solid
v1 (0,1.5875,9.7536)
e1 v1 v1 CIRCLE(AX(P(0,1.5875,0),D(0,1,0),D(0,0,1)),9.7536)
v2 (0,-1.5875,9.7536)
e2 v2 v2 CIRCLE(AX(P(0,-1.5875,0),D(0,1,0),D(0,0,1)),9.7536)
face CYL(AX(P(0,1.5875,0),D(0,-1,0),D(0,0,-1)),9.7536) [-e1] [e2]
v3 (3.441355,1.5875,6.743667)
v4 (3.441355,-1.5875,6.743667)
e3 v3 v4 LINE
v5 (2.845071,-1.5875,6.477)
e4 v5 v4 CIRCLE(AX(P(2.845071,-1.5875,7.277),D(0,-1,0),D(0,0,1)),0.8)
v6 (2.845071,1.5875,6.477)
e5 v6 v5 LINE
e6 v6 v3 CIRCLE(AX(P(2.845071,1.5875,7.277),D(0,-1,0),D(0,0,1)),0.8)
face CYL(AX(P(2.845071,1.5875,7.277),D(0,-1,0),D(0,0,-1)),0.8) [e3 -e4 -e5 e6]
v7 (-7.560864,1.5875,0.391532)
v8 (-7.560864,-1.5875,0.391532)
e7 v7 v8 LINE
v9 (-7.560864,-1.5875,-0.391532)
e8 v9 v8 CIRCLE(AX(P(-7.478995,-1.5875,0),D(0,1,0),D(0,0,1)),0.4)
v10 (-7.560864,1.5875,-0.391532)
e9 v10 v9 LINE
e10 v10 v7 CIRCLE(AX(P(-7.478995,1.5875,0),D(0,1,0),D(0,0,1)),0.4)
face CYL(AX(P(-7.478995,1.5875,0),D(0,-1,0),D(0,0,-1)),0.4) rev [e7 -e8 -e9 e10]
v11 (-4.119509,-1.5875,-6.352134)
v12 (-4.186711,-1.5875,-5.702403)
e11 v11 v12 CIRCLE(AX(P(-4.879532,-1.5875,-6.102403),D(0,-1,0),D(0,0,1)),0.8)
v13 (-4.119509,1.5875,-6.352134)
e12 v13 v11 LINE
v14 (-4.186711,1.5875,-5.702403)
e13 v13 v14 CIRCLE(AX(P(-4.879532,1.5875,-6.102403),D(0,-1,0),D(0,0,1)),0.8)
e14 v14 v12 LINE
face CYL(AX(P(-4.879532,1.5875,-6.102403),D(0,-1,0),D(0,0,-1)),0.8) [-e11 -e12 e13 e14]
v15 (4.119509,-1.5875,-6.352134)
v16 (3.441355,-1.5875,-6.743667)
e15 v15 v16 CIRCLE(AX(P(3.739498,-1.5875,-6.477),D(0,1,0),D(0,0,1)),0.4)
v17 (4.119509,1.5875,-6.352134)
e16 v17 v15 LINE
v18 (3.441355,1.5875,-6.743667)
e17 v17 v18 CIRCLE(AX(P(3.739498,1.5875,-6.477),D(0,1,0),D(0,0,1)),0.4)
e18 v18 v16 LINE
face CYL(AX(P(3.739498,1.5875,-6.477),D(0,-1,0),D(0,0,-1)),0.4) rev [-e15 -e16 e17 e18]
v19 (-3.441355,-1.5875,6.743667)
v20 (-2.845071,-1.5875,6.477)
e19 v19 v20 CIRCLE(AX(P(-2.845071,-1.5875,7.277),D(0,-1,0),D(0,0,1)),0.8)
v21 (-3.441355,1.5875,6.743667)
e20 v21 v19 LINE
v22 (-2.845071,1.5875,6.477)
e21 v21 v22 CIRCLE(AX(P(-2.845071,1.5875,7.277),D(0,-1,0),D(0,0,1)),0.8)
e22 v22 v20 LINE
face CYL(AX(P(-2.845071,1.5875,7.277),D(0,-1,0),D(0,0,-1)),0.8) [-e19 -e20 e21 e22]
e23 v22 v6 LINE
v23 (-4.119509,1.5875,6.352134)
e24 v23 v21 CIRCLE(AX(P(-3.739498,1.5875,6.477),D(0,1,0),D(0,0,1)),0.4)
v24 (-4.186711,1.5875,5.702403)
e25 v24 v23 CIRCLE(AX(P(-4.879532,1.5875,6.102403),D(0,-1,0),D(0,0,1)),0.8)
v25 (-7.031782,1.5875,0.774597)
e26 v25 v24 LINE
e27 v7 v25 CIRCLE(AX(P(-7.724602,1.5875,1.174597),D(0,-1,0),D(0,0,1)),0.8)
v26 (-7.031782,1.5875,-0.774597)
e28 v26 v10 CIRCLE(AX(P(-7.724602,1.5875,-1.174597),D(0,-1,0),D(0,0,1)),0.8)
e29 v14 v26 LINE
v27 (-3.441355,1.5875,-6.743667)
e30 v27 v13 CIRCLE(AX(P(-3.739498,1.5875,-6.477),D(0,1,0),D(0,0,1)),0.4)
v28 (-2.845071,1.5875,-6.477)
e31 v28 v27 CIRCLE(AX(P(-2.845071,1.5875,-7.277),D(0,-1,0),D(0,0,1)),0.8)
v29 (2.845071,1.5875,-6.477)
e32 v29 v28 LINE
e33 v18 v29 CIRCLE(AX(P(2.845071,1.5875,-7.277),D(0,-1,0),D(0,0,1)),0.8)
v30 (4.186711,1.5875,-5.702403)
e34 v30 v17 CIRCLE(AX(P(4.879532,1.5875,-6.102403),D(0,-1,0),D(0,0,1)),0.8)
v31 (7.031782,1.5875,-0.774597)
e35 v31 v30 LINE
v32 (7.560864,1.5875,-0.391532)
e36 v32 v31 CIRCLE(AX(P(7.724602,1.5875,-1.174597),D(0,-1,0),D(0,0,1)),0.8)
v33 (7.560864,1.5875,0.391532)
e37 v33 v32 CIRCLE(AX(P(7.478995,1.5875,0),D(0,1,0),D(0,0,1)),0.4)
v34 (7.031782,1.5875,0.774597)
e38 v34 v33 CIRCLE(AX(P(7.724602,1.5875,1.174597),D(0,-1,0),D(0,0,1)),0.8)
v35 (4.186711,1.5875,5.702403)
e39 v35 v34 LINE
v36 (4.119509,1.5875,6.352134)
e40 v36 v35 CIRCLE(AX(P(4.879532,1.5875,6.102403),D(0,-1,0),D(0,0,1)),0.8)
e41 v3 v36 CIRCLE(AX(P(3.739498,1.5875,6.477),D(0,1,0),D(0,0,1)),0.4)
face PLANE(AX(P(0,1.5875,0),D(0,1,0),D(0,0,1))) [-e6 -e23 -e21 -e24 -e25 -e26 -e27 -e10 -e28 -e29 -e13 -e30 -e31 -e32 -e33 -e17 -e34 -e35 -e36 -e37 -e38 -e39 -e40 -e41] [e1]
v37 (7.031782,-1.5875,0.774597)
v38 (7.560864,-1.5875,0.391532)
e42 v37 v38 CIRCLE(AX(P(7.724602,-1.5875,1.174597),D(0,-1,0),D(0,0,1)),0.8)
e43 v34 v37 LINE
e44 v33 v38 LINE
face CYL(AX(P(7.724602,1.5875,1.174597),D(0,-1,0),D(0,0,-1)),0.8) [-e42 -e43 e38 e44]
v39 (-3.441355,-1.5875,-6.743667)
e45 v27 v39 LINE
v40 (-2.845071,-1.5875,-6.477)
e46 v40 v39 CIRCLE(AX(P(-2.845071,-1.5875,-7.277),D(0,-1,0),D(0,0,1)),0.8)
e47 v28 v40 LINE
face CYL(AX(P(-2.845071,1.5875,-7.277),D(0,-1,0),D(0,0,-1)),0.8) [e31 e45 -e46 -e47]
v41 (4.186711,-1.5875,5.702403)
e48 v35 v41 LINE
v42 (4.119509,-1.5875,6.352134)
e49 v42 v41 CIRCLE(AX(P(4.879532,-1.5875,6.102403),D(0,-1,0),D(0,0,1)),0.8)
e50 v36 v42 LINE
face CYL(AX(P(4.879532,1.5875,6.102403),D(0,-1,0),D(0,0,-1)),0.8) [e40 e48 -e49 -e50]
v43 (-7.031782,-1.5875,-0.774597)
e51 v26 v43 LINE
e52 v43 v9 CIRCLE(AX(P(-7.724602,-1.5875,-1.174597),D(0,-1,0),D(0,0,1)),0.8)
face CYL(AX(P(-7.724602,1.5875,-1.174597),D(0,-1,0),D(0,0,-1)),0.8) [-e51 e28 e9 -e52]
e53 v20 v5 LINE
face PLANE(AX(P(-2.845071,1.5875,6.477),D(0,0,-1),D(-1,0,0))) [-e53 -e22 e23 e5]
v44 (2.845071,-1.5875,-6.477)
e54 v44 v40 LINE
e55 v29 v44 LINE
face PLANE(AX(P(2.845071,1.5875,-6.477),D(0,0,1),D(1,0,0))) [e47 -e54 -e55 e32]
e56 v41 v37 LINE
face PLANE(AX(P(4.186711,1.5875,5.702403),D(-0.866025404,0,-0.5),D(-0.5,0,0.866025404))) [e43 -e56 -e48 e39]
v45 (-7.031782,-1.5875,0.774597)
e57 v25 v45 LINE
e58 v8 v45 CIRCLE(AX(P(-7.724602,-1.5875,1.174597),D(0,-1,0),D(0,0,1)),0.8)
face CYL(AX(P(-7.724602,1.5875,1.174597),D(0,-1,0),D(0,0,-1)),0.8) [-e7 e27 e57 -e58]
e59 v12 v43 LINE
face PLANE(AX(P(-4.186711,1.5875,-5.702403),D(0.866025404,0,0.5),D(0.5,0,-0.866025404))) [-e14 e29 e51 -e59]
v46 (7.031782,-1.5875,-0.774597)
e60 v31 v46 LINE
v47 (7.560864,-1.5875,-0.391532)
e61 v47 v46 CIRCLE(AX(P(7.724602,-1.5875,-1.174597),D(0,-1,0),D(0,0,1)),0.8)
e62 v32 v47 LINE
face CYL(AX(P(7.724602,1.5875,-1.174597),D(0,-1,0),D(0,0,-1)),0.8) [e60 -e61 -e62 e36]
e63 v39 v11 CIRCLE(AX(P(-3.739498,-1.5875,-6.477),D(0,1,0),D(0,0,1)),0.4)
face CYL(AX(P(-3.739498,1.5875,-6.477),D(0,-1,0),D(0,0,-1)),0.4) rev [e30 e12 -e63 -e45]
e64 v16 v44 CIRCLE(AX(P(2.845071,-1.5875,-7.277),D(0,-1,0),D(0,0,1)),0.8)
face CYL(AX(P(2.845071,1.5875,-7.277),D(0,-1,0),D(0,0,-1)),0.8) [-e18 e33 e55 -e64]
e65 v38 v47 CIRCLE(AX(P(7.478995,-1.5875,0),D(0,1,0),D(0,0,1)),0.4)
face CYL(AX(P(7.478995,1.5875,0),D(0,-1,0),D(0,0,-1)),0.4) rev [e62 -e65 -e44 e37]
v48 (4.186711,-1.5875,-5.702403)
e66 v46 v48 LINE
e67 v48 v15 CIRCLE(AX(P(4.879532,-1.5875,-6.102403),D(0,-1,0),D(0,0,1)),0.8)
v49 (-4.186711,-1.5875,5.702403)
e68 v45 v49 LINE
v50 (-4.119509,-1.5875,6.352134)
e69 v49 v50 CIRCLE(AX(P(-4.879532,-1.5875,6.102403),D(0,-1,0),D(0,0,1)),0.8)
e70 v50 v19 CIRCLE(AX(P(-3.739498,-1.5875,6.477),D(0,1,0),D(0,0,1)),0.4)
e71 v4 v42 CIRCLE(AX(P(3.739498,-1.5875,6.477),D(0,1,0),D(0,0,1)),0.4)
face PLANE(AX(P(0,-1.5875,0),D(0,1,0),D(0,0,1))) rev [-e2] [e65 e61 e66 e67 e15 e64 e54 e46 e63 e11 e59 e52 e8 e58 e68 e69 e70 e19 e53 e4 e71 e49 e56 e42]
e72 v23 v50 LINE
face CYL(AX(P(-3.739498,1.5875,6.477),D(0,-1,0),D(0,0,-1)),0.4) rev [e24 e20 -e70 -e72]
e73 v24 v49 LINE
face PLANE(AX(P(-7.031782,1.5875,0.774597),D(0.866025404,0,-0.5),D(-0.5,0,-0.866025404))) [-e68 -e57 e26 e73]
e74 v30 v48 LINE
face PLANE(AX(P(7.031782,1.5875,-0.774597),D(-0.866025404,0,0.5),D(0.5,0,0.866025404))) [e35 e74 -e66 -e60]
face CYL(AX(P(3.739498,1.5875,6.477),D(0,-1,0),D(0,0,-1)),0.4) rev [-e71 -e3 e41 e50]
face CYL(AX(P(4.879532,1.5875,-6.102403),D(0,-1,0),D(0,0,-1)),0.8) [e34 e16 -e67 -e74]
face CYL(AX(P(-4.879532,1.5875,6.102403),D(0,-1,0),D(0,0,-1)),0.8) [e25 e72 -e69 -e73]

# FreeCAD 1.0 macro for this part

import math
import FreeCAD as App
import Part
import Sketcher

V = App.Vector
Q = App.Units.Quantity

doc = App.newDocument("Part")
params = doc.addObject("Spreadsheet::Sheet", "Params")
for row, (alias, value) in enumerate([
    ("sketch1_radius", "0.8 mm"),
    ("sketch1_radius2", "0.4 mm"),
    ("pad1_length", "3.175 mm"),
], start=1):
    params.set(f"A{row}", alias)
    params.set(f"B{row}", "=" + value)
    params.setAlias(f"B{row}", alias)

body = doc.addObject("PartDesign::Body", "Body")

# Sketch on XZ plane
sketch1 = body.newObject("Sketcher::SketchObject", "Sketch")
sketch1.AttachmentSupport = (doc.getObject("XZ_Plane"), [""])
sketch1.MapMode = "FlatFace"
sketch1.addGeometry([
    Part.Circle(V(0, 0, 0), V(0, 0, 1), 9.7536),  # 0
    Part.LineSegment(V(7.031782, 0.774597, 0), V(4.186711, 5.702403, 0)),  # 1
    Part.ArcOfCircle(Part.Circle(V(4.879532, 6.102403, 0), V(0, 0, 1), 0.8), math.radians(161.810315), math.radians(210)),  # 2
    Part.ArcOfCircle(Part.Circle(V(3.739498, 6.477, 0), V(0, 0, 1), 0.4), math.radians(-18.189685), math.radians(138.189685)),  # 3
    Part.ArcOfCircle(Part.Circle(V(2.845071, 7.277, 0), V(0, 0, 1), 0.8), math.radians(-90), math.radians(-41.810315)),  # 4
    Part.LineSegment(V(2.845071, 6.477, 0), V(-2.845071, 6.477, 0)),  # 5
    Part.ArcOfCircle(Part.Circle(V(-2.845071, 7.277, 0), V(0, 0, 1), 0.8), math.radians(-138.189685), math.radians(-90)),  # 6
    Part.ArcOfCircle(Part.Circle(V(-3.739498, 6.477, 0), V(0, 0, 1), 0.4), math.radians(41.810315), math.radians(198.189685)),  # 7
    Part.ArcOfCircle(Part.Circle(V(-4.879532, 6.102403, 0), V(0, 0, 1), 0.8), math.radians(-30), math.radians(18.189685)),  # 8
    Part.LineSegment(V(-4.186711, 5.702403, 0), V(-7.031782, 0.774597, 0)),  # 9
    Part.ArcOfCircle(Part.Circle(V(-7.724602, 1.174597, 0), V(0, 0, 1), 0.8), math.radians(-78.189685), math.radians(-30)),  # 10
    Part.ArcOfCircle(Part.Circle(V(-7.478995, 0, 0), V(0, 0, 1), 0.4), math.radians(101.810315), math.radians(258.189685)),  # 11
    Part.ArcOfCircle(Part.Circle(V(-7.724602, -1.174597, 0), V(0, 0, 1), 0.8), math.radians(30), math.radians(78.189685)),  # 12
    Part.LineSegment(V(-7.031782, -0.774597, 0), V(-4.186711, -5.702403, 0)),  # 13
    Part.ArcOfCircle(Part.Circle(V(-4.879532, -6.102403, 0), V(0, 0, 1), 0.8), math.radians(-18.189685), math.radians(30)),  # 14
    Part.ArcOfCircle(Part.Circle(V(-3.739498, -6.477, 0), V(0, 0, 1), 0.4), math.radians(161.810315), math.radians(318.189685)),  # 15
    Part.ArcOfCircle(Part.Circle(V(-2.845071, -7.277, 0), V(0, 0, 1), 0.8), math.radians(90), math.radians(138.189685)),  # 16
    Part.LineSegment(V(-2.845071, -6.477, 0), V(2.845071, -6.477, 0)),  # 17
    Part.ArcOfCircle(Part.Circle(V(2.845071, -7.277, 0), V(0, 0, 1), 0.8), math.radians(41.810315), math.radians(90)),  # 18
    Part.ArcOfCircle(Part.Circle(V(3.739498, -6.477, 0), V(0, 0, 1), 0.4), math.radians(-138.189685), math.radians(18.189685)),  # 19
    Part.ArcOfCircle(Part.Circle(V(4.879532, -6.102403, 0), V(0, 0, 1), 0.8), math.radians(150), math.radians(198.189685)),  # 20
    Part.LineSegment(V(4.186711, -5.702403, 0), V(7.031782, -0.774597, 0)),  # 21
    Part.ArcOfCircle(Part.Circle(V(7.724602, -1.174597, 0), V(0, 0, 1), 0.8), math.radians(101.810315), math.radians(150)),  # 22
    Part.ArcOfCircle(Part.Circle(V(7.478995, 0, 0), V(0, 0, 1), 0.4), math.radians(-78.189685), math.radians(78.189685)),  # 23
    Part.ArcOfCircle(Part.Circle(V(7.724602, 1.174597, 0), V(0, 0, 1), 0.8), math.radians(-150), math.radians(-101.810315)),  # 24
], False)
sketch1.addConstraint([
    Sketcher.Constraint("Tangent", 1, 2, 2, 2),
    Sketcher.Constraint("Tangent", 2, 1, 3, 1),
    Sketcher.Constraint("Tangent", 3, 2, 4, 2),
    Sketcher.Constraint("Tangent", 4, 1, 5, 1),
    Sketcher.Constraint("Tangent", 5, 2, 6, 2),
    Sketcher.Constraint("Tangent", 6, 1, 7, 1),
    Sketcher.Constraint("Tangent", 7, 2, 8, 2),
    Sketcher.Constraint("Tangent", 8, 1, 9, 1),
    Sketcher.Constraint("Tangent", 9, 2, 10, 2),
    Sketcher.Constraint("Tangent", 10, 1, 11, 1),
    Sketcher.Constraint("Tangent", 11, 2, 12, 2),
    Sketcher.Constraint("Tangent", 12, 1, 13, 1),
    Sketcher.Constraint("Tangent", 13, 2, 14, 2),
    Sketcher.Constraint("Tangent", 14, 1, 15, 1),
    Sketcher.Constraint("Tangent", 15, 2, 16, 2),
    Sketcher.Constraint("Tangent", 16, 1, 17, 1),
    Sketcher.Constraint("Tangent", 17, 2, 18, 2),
    Sketcher.Constraint("Tangent", 18, 1, 19, 1),
    Sketcher.Constraint("Tangent", 19, 2, 20, 2),
    Sketcher.Constraint("Tangent", 20, 1, 21, 1),
    Sketcher.Constraint("Tangent", 21, 2, 22, 2),
    Sketcher.Constraint("Tangent", 22, 1, 23, 1),
    Sketcher.Constraint("Tangent", 23, 2, 24, 2),
    Sketcher.Constraint("Tangent", 24, 1, 1, 1),
    Sketcher.Constraint("Horizontal", 5),
    Sketcher.Constraint("Horizontal", 17),
    Sketcher.Constraint("Coincident", 0, 3, -1, 1),
    Sketcher.Constraint("Equal", 2, 4),
    Sketcher.Constraint("Equal", 4, 6),
    Sketcher.Constraint("Equal", 3, 7),
    Sketcher.Constraint("Equal", 6, 8),
    Sketcher.Constraint("Equal", 8, 10),
    Sketcher.Constraint("Equal", 7, 11),
    Sketcher.Constraint("Equal", 10, 12),
    Sketcher.Constraint("Equal", 12, 14),
    Sketcher.Constraint("Equal", 11, 15),
    Sketcher.Constraint("Equal", 14, 16),
    Sketcher.Constraint("Equal", 16, 18),
    Sketcher.Constraint("Equal", 15, 19),
    Sketcher.Constraint("Equal", 18, 20),
    Sketcher.Constraint("Equal", 20, 22),
    Sketcher.Constraint("Equal", 19, 23),
    Sketcher.Constraint("Equal", 22, 24),
    Sketcher.Constraint("Symmetric", 2, 3, 14, 3, -1, 1),
    Sketcher.Constraint("Symmetric", 4, 3, 16, 3, -1, 1),
    Sketcher.Constraint("Symmetric", 7, 3, 19, 3, -1, 1),
    Sketcher.Constraint("Symmetric", 10, 3, 22, 3, -1, 1),
    Sketcher.Constraint("Symmetric", 12, 3, 24, 3, -1, 1),
    Sketcher.Constraint("Symmetric", 3, 3, 7, 3, -2),
    Sketcher.Constraint("Symmetric", 12, 3, 22, 3, -2),
    Sketcher.Constraint("Parallel", 9, 21),
    Sketcher.Constraint("Horizontal", 2, 3, 8, 3),
    Sketcher.Constraint("Horizontal", 7, 3, 4, 1),
    Sketcher.Constraint("Radius", 2, 0.8),
    Sketcher.Constraint("Radius", 3, 0.4),
    Sketcher.Constraint("Angle", 1, Q("120 deg")),
    Sketcher.Constraint("Diameter", 0, 19.5072),
    Sketcher.Constraint("DistanceY", -1, 1, 3, 3, 6.477),
    Sketcher.Constraint("DistanceY", 12, 3, 8, 3, 7.277),
    Sketcher.Constraint("DistanceX", 5, 2, 5, 1, 5.690141),
    Sketcher.Constraint("Distance", 1, 5.690141),
])
sketch1.setExpression("Constraints[53]", "Params.sketch1_radius")
sketch1.setExpression("Constraints[54]", "Params.sketch1_radius2")
pad1 = body.newObject("PartDesign::Pad", "Pad")
pad1.Profile = sketch1
pad1.setExpression("Length", "Params.pad1_length")
pad1.Midplane = True

doc.recompute()
